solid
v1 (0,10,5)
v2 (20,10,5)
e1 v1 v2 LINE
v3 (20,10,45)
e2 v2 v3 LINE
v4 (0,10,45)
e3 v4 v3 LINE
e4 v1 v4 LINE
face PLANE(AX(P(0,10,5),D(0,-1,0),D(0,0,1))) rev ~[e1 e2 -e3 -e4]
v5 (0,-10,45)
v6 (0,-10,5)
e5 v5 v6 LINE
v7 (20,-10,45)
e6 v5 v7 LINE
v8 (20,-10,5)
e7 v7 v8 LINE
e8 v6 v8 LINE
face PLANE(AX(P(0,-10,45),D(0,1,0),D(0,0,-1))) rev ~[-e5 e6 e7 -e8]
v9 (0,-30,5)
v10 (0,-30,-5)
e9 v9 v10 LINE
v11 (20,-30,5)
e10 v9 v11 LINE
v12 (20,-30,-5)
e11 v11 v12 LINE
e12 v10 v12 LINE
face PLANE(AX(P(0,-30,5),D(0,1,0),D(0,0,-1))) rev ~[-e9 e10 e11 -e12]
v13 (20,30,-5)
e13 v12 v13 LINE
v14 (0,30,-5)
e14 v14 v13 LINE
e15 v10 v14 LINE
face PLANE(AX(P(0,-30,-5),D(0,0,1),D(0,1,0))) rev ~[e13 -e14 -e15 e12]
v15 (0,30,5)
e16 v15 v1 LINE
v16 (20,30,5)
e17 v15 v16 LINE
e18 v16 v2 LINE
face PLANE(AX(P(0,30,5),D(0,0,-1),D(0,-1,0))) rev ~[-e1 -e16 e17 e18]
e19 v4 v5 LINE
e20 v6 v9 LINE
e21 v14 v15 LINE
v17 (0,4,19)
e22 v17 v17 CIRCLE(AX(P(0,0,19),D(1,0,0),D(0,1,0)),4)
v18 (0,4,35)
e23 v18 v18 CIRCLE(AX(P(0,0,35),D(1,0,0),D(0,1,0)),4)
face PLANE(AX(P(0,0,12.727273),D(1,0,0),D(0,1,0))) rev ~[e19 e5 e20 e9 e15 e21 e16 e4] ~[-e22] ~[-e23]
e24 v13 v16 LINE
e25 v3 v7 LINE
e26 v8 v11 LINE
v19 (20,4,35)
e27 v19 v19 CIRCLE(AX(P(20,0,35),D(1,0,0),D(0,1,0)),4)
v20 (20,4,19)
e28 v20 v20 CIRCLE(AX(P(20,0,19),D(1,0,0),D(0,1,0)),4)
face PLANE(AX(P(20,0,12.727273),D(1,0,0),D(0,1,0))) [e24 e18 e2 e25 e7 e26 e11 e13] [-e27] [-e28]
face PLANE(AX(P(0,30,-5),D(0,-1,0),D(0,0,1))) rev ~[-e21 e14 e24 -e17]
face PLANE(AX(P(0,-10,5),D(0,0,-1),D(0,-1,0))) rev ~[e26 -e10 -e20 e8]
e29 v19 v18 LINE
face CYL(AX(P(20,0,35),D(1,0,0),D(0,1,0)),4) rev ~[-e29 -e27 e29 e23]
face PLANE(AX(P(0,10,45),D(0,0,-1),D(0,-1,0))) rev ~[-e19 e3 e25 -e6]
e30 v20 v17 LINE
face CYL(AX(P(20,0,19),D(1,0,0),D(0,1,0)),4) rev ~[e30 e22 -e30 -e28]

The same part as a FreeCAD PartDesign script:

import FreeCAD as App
import Part
import Sketcher

V = App.Vector
Q = App.Units.Quantity


def add_polygon(sketch, points):
    """Adds a closed chain of lines whose ends are joined by coincident constraints."""
    first, n = sketch.GeometryCount, len(points)
    for a, b in zip(points, points[1:] + points[:1]):
        sketch.addGeometry(Part.LineSegment(App.Vector(*a, 0), App.Vector(*b, 0)), False)
    for i in range(n):
        sketch.addConstraint(Sketcher.Constraint("Coincident", first + i, 2, first + (i + 1) % n, 1))

doc = App.newDocument("Part")
params = doc.addObject("Spreadsheet::Sheet", "Params")
for row, (alias, value) in enumerate([
    ("sketch1_width", "60 mm"),
    ("sketch1_height", "10 mm"),
    ("sketch1_height2", "40 mm"),
    ("pad1_length", "20 mm"),
    ("sketch2_diameter", "8 mm"),
    ("pocket1_length", "20 mm"),
], start=1):
    params.set(f"A{row}", alias)
    params.set(f"B{row}", "=" + value)
    params.setAlias(f"B{row}", alias)

body = doc.addObject("PartDesign::Body", "Body")

sketch1 = body.newObject("Sketcher::SketchObject", "Sketch")
sketch1.AttachmentSupport = (doc.getObject("YZ_Plane"), [""])
sketch1.MapMode = "FlatFace"
add_polygon(sketch1, [(-30, -5), (30, -5), (30, 5), (10, 5), (10, 45), (-10, 45), (-10, 5), (-30, 5)])
sketch1.addConstraint(Sketcher.Constraint("Horizontal", 0))
sketch1.addConstraint(Sketcher.Constraint("Vertical", 1))
sketch1.addConstraint(Sketcher.Constraint("Horizontal", 2))
sketch1.addConstraint(Sketcher.Constraint("Vertical", 3))
sketch1.addConstraint(Sketcher.Constraint("Horizontal", 4))
sketch1.addConstraint(Sketcher.Constraint("Vertical", 5))
sketch1.addConstraint(Sketcher.Constraint("Horizontal", 6))
sketch1.addConstraint(Sketcher.Constraint("Vertical", 7))
sketch1.addConstraint(Sketcher.Constraint("Symmetric", 0, 2, 6, 2, -1, 1))
sketch1.addConstraint(Sketcher.Constraint("Symmetric", 2, 2, 5, 2, -2))
sketch1.addConstraint(Sketcher.Constraint("Equal", 2, 4))
sketch1.addConstraint(Sketcher.Constraint("DistanceX", 0, 1, 0, 2, Q("60 mm")))
sketch1.addConstraint(Sketcher.Constraint("DistanceY", 1, 1, 1, 2, Q("10 mm")))
sketch1.addConstraint(Sketcher.Constraint("DistanceY", 3, 1, 3, 2, Q("40 mm")))
sketch1.setExpression("Constraints[19]", "Params.sketch1_width")
sketch1.setExpression("Constraints[20]", "Params.sketch1_height")
sketch1.setExpression("Constraints[21]", "Params.sketch1_height2")
pad1 = body.newObject("PartDesign::Pad", "Pad")
pad1.Profile = sketch1
pad1.setExpression("Length", "Params.pad1_length")

sketch2 = body.newObject("Sketcher::SketchObject", "Sketch001")
sketch2.AttachmentSupport = (doc.getObject("YZ_Plane"), [""])
sketch2.MapMode = "FlatFace"
sketch2.AttachmentOffset = App.Placement(V(0, 0, 20), App.Rotation())
sketch2.addGeometry(Part.Circle(V(0, 35, 0), V(0, 0, 1), 4), False)
sketch2.addGeometry(Part.Circle(V(0, 19, 0), V(0, 0, 1), 4), False)
sketch2.addConstraint(Sketcher.Constraint("Equal", 0, 1))
sketch2.addConstraint(Sketcher.Constraint("PointOnObject", 0, 3, -2))
sketch2.addConstraint(Sketcher.Constraint("PointOnObject", 1, 3, -2))
sketch2.addConstraint(Sketcher.Constraint("Diameter", 0, Q("8 mm")))
sketch2.addConstraint(Sketcher.Constraint("DistanceY", -1, 1, 0, 3, Q("35 mm")))
sketch2.addConstraint(Sketcher.Constraint("DistanceY", -1, 1, 1, 3, Q("19 mm")))
sketch2.setExpression("Constraints[3]", "Params.sketch2_diameter")
pocket1 = body.newObject("PartDesign::Pocket", "Pocket")
pocket1.Profile = sketch2
pocket1.setExpression("Length", "Params.pocket1_length")

doc.recompute()
